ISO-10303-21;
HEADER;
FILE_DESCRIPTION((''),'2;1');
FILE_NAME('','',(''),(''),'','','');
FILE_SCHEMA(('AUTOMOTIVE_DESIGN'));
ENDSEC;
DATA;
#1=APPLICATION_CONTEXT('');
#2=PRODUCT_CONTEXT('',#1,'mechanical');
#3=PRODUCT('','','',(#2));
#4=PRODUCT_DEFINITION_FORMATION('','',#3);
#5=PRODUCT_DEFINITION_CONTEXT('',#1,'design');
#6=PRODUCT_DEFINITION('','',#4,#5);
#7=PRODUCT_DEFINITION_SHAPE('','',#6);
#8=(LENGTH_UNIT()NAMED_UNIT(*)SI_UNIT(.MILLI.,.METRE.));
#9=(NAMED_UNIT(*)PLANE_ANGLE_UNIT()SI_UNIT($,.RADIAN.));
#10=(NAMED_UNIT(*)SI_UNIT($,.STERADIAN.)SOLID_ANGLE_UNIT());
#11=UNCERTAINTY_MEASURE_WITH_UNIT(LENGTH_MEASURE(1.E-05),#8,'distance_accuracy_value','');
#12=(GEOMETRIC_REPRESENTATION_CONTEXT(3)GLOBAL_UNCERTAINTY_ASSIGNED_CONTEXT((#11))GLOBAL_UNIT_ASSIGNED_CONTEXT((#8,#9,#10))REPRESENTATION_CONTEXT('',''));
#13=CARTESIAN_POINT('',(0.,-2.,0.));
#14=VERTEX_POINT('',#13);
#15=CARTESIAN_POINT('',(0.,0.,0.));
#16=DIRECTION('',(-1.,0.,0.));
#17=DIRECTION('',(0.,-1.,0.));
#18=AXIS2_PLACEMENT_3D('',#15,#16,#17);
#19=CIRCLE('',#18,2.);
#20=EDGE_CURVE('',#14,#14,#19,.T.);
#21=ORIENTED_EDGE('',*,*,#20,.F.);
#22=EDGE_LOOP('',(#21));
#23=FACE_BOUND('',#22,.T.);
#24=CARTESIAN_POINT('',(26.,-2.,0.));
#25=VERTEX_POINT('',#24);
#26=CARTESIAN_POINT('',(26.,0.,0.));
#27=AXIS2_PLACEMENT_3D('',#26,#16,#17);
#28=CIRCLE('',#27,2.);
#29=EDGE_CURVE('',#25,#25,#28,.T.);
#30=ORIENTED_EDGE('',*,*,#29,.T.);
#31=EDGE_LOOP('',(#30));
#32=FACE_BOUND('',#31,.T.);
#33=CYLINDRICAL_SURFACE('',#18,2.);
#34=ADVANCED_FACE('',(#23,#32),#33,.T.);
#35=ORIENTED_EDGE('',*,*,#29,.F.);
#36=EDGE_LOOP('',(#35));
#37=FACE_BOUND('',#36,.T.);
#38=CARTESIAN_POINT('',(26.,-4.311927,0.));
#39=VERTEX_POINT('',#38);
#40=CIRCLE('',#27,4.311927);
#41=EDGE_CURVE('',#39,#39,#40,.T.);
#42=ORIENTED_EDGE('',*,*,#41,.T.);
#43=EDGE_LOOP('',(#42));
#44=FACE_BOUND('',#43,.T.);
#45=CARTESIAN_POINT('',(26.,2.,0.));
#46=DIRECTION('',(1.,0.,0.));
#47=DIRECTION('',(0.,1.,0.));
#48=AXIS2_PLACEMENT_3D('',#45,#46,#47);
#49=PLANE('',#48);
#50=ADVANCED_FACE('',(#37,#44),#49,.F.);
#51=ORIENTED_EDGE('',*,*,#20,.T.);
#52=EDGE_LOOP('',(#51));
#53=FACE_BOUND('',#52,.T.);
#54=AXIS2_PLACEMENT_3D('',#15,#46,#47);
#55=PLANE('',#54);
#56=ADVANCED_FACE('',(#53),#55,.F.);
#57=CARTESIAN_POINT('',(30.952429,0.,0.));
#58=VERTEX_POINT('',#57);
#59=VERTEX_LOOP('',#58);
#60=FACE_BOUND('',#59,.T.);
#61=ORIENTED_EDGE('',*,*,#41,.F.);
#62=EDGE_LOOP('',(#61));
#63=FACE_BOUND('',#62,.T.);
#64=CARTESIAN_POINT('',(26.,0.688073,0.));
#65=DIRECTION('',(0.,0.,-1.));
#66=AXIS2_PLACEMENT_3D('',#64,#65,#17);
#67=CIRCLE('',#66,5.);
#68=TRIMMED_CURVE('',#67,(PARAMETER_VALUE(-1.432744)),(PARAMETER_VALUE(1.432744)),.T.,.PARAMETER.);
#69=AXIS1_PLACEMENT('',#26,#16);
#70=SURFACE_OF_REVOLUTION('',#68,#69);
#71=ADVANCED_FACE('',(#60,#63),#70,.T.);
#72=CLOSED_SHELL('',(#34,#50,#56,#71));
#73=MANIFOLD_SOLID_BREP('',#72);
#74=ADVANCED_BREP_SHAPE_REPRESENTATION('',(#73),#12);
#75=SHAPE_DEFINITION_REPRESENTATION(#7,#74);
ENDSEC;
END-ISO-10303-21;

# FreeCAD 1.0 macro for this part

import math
import FreeCAD as App
import Part
import Sketcher
Q = App.Units.Quantity

doc = App.newDocument("Part")
body = doc.addObject("PartDesign::Body", "Body")

# Sketch on XY plane
sketch1 = body.newObject("Sketcher::SketchObject", "Sketch")
sketch1.AttachmentSupport = (doc.getObject("XY_Plane"), [""])
sketch1.MapMode = "FlatFace"
sketch1.addGeometry([
    Part.LineSegment(App.Vector(0, 2, 0), App.Vector(0, 0, 0)),  # 0
    Part.LineSegment(App.Vector(0, 0, 0), App.Vector(31, 0, 0)),  # 1
    Part.ArcOfCircle(Part.Circle(App.Vector(26, -0.7, 0), App.Vector(0, 0, 1), 5), math.radians(8), math.radians(90)),  # 2
    Part.LineSegment(App.Vector(26, 4.3, 0), App.Vector(26, 2, 0)),  # 3
    Part.LineSegment(App.Vector(26, 2, 0), App.Vector(0, 2, 0)),  # 4
], False)
sketch1.addConstraint([
    Sketcher.Constraint("Coincident", 0, 2, 1, 1),
    Sketcher.Constraint("Coincident", 1, 2, 2, 1),
    Sketcher.Constraint("Coincident", 2, 2, 3, 1),
    Sketcher.Constraint("Coincident", 3, 2, 4, 1),
    Sketcher.Constraint("Coincident", 4, 2, 0, 1),
    Sketcher.Constraint("Vertical", 0),
    Sketcher.Constraint("Horizontal", 1),
    Sketcher.Constraint("Vertical", 3),
    Sketcher.Constraint("Horizontal", 4),
    Sketcher.Constraint("Coincident", 0, 2, -1, 1),
    Sketcher.Constraint("Radius", 2, Q("5 mm")),
    Sketcher.Constraint("DistanceX", 4, 2, 4, 1, Q("26 mm")),
    Sketcher.Constraint("DistanceY", 0, 2, 0, 1, Q("2 mm")),
    Sketcher.Constraint("DistanceX", -1, 1, 2, 3, Q("26 mm")),
    Sketcher.Constraint("DistanceX", 1, 1, 1, 2, Q("30.952429 mm")),
])
revolution = body.newObject("PartDesign::Revolution", "Revolution")
revolution.Profile = sketch1
revolution.ReferenceAxis = (sketch1, ["H_Axis"])
revolution.Angle = 360

doc.recompute()
